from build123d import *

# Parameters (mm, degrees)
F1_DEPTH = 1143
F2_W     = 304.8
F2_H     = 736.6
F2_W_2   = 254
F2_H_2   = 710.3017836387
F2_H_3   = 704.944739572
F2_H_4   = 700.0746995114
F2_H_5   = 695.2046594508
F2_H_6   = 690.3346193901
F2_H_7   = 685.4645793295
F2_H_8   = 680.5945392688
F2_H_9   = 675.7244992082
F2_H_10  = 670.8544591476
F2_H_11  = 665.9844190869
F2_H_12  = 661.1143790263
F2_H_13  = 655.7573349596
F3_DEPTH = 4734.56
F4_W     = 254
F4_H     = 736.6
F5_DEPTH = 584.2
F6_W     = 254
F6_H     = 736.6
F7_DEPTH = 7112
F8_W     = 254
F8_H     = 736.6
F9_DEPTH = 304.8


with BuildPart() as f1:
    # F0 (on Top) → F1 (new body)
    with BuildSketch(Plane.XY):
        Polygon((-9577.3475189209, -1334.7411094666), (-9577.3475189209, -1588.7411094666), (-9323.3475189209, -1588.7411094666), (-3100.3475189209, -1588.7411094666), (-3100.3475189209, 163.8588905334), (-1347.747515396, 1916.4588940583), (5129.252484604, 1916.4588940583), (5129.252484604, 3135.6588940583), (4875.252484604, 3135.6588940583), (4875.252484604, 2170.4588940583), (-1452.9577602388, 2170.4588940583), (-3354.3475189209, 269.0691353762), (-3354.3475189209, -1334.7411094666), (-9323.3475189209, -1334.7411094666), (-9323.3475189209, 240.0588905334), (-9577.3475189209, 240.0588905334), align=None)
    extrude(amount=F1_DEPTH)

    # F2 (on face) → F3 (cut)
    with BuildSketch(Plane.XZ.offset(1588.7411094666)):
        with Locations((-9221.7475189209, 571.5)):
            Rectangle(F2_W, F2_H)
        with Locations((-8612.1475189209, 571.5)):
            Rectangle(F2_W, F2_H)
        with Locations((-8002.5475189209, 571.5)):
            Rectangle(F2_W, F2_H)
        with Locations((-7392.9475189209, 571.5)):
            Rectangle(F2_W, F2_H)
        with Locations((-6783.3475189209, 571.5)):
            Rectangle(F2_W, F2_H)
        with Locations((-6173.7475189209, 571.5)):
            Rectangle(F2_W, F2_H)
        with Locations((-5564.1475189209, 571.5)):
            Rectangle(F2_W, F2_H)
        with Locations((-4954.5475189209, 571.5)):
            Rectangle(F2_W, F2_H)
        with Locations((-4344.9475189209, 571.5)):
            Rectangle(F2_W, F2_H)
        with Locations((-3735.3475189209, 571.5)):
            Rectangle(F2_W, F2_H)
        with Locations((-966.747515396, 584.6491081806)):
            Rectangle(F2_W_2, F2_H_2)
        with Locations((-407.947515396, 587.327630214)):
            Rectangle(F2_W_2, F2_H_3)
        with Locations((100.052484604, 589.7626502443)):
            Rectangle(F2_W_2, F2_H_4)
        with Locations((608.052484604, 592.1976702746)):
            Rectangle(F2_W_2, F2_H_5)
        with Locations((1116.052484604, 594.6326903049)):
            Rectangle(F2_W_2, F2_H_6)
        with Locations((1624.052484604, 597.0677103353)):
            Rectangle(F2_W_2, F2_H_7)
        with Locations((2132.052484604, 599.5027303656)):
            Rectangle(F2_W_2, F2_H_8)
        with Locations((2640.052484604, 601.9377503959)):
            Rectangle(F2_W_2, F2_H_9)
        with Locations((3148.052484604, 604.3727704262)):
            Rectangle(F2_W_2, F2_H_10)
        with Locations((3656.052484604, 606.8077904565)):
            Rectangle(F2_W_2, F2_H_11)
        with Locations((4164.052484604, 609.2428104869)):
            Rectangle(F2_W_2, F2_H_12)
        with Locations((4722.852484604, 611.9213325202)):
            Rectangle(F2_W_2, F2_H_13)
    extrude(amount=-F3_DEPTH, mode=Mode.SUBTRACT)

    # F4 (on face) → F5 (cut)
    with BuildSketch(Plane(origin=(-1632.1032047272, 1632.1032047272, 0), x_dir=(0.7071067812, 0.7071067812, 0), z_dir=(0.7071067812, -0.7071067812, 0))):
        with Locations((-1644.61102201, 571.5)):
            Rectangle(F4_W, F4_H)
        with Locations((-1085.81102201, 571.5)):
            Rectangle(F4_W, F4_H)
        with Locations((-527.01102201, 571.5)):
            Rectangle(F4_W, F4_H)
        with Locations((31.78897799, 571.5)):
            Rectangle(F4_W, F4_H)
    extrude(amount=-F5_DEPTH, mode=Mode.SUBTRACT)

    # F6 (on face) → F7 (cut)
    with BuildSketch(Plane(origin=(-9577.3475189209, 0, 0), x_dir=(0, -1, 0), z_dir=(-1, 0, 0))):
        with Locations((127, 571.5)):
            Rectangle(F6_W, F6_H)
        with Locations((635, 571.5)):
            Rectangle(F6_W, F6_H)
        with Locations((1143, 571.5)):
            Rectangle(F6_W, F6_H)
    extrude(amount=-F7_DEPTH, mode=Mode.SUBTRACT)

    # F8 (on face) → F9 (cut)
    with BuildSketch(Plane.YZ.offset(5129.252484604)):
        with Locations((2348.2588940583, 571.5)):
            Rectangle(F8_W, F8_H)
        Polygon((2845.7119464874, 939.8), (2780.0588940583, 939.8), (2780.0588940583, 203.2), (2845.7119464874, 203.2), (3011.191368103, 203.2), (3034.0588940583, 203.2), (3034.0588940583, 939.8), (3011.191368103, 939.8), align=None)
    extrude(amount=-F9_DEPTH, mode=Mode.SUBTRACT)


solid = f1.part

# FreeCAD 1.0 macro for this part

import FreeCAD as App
import Part
import Sketcher
from FreeCAD import Vector
Q = App.Units.Quantity


def add_polygon(sketch, points):
    """Adds a closed chain of lines whose ends are joined by coincident constraints."""
    first, n = sketch.GeometryCount, len(points)
    for a, b in zip(points, points[1:] + points[:1]):
        sketch.addGeometry(Part.LineSegment(App.Vector(*a, 0), App.Vector(*b, 0)), False)
    for i in range(n):
        sketch.addConstraint(Sketcher.Constraint("Coincident", first + i, 2, first + (i + 1) % n, 1))

doc = App.newDocument("Part")
body = doc.addObject("PartDesign::Body", "Body")

sketch1 = body.newObject("Sketcher::SketchObject", "Sketch")
sketch1.AttachmentSupport = (doc.getObject("XY_Plane"), [""])
sketch1.MapMode = "FlatFace"
add_polygon(sketch1, [(-9577, -1589), (-3100, -1589), (-3100, 164), (-1348, 1916), (5129, 1916), (5129, 3136), (4875, 3136), (4875, 2170), (-1453, 2170), (-3354, 269), (-3354, -1335), (-9323, -1335), (-9323, 240), (-9577, 240)])
sketch1.addConstraint([
    Sketcher.Constraint("Horizontal", 0),
    Sketcher.Constraint("Vertical", 1),
    Sketcher.Constraint("Horizontal", 3),
    Sketcher.Constraint("Vertical", 4),
    Sketcher.Constraint("Horizontal", 5),
    Sketcher.Constraint("Vertical", 6),
    Sketcher.Constraint("Horizontal", 7),
    Sketcher.Constraint("Vertical", 9),
    Sketcher.Constraint("Horizontal", 10),
    Sketcher.Constraint("Vertical", 11),
    Sketcher.Constraint("Horizontal", 12),
    Sketcher.Constraint("Vertical", 13),
    Sketcher.Constraint("Parallel", 2, 8),
    Sketcher.Constraint("Equal", 0, 3),
    Sketcher.Constraint("Equal", 5, 12),
    Sketcher.Constraint("DistanceX", 0, 1, 0, 2, Q("255 in")),
    Sketcher.Constraint("DistanceX", 5, 2, 5, 1, Q("10 in")),
    Sketcher.Constraint("DistanceX", 10, 2, 10, 1, Q("235 in")),
    Sketcher.Constraint("DistanceY", 1, 1, 1, 2, Q("69 in")),
    Sketcher.Constraint("DistanceY", 4, 1, 4, 2, Q("48 in")),
    Sketcher.Constraint("DistanceY", 6, 2, 6, 1, Q("38 in")),
    Sketcher.Constraint("DistanceY", 11, 1, 11, 2, Q("62 in")),
    Sketcher.Constraint("DistanceY", 13, 2, 13, 1, Q("72 in")),
    Sketcher.Constraint("Angle", 2, Q("45 deg")),
    Sketcher.Constraint("DistanceX", 1, 2, 2, 2, Q("69.0000001 in")),
    Sketcher.Constraint("DistanceX", 7, 2, 7, 1, Q("6328.210245 mm")),
    Sketcher.Constraint("DistanceX", 0, 2, -1, 1, Q("3100.347519 mm")),
    Sketcher.Constraint("DistanceY", 0, 2, -1, 1, Q("1588.741109 mm")),
])
pad1 = body.newObject("PartDesign::Pad", "Pad")
pad1.Profile = sketch1
pad1.Length = Q("45 in")

sketch2 = body.newObject("Sketcher::SketchObject", "Sketch001")
sketch2.AttachmentSupport = (doc.getObject("XZ_Plane"), [""])
sketch2.MapMode = "FlatFace"
sketch2.AttachmentOffset = App.Placement(Vector(0, 0, 1588.741109), App.Rotation())
add_polygon(sketch2, [(-9374, 940), (-9374, 203), (-9069, 203), (-9069, 940)])
add_polygon(sketch2, [(-8765, 940), (-8765, 203), (-8460, 203), (-8460, 940)])
add_polygon(sketch2, [(-8155, 940), (-8155, 203), (-7850, 203), (-7850, 940)])
add_polygon(sketch2, [(-7545, 940), (-7545, 203), (-7241, 203), (-7241, 940)])
add_polygon(sketch2, [(-6936, 940), (-6936, 203), (-6631, 203), (-6631, 940)])
add_polygon(sketch2, [(-6326, 940), (-6326, 203), (-6021, 203), (-6021, 940)])
add_polygon(sketch2, [(-5717, 940), (-5717, 203), (-5412, 203), (-5412, 940)])
add_polygon(sketch2, [(-5107, 940), (-5107, 203), (-4802, 203), (-4802, 940)])
add_polygon(sketch2, [(-4497, 940), (-4497, 203), (-4193, 203), (-4193, 940)])
add_polygon(sketch2, [(-3888, 940), (-3888, 203), (-3583, 203), (-3583, 940)])
add_polygon(sketch2, [(-1094, 940), (-1094, 229), (-840, 229), (-840, 940)])
add_polygon(sketch2, [(-535, 940), (-535, 235), (-281, 235), (-281, 940)])
add_polygon(sketch2, [(-27, 940), (-27, 240), (227, 240), (227, 940)])
add_polygon(sketch2, [(481, 940), (481, 245), (735, 245), (735, 940)])
add_polygon(sketch2, [(989, 940), (989, 249), (1243, 249), (1243, 940)])
add_polygon(sketch2, [(1497, 940), (1497, 254), (1751, 254), (1751, 940)])
add_polygon(sketch2, [(2005, 940), (2005, 259), (2259, 259), (2259, 940)])
add_polygon(sketch2, [(2513, 940), (2513, 264), (2767, 264), (2767, 940)])
add_polygon(sketch2, [(3021, 940), (3021, 269), (3275, 269), (3275, 940)])
add_polygon(sketch2, [(3529, 940), (3529, 274), (3783, 274), (3783, 940)])
add_polygon(sketch2, [(4037, 940), (4037, 279), (4291, 279), (4291, 940)])
add_polygon(sketch2, [(4596, 940), (4596, 284), (4850, 284), (4850, 940)])
sketch2.addConstraint([
    Sketcher.Constraint("Vertical", 0),
    Sketcher.Constraint("Horizontal", 1),
    Sketcher.Constraint("Vertical", 2),
    Sketcher.Constraint("Horizontal", 3),
    Sketcher.Constraint("Vertical", 4),
    Sketcher.Constraint("Horizontal", 5),
    Sketcher.Constraint("Vertical", 6),
    Sketcher.Constraint("Horizontal", 7),
    Sketcher.Constraint("Vertical", 8),
    Sketcher.Constraint("Horizontal", 9),
    Sketcher.Constraint("Vertical", 10),
    Sketcher.Constraint("Horizontal", 11),
    Sketcher.Constraint("Vertical", 12),
    Sketcher.Constraint("Horizontal", 13),
    Sketcher.Constraint("Vertical", 14),
    Sketcher.Constraint("Horizontal", 15),
    Sketcher.Constraint("Vertical", 16),
    Sketcher.Constraint("Horizontal", 17),
    Sketcher.Constraint("Vertical", 18),
    Sketcher.Constraint("Horizontal", 19),
    Sketcher.Constraint("Vertical", 20),
    Sketcher.Constraint("Horizontal", 21),
    Sketcher.Constraint("Vertical", 22),
    Sketcher.Constraint("Horizontal", 23),
    Sketcher.Constraint("Vertical", 24),
    Sketcher.Constraint("Horizontal", 25),
    Sketcher.Constraint("Vertical", 26),
    Sketcher.Constraint("Horizontal", 27),
    Sketcher.Constraint("Vertical", 28),
    Sketcher.Constraint("Horizontal", 29),
    Sketcher.Constraint("Vertical", 30),
    Sketcher.Constraint("Horizontal", 31),
    Sketcher.Constraint("Vertical", 32),
    Sketcher.Constraint("Horizontal", 33),
    Sketcher.Constraint("Vertical", 34),
    Sketcher.Constraint("Horizontal", 35),
    Sketcher.Constraint("Vertical", 36),
    Sketcher.Constraint("Horizontal", 37),
    Sketcher.Constraint("Vertical", 38),
    Sketcher.Constraint("Horizontal", 39),
    Sketcher.Constraint("Vertical", 40),
    Sketcher.Constraint("Horizontal", 41),
    Sketcher.Constraint("Vertical", 42),
    Sketcher.Constraint("Horizontal", 43),
    Sketcher.Constraint("Vertical", 44),
    Sketcher.Constraint("Horizontal", 45),
    Sketcher.Constraint("Vertical", 46),
    Sketcher.Constraint("Horizontal", 47),
    Sketcher.Constraint("Vertical", 48),
    Sketcher.Constraint("Horizontal", 49),
    Sketcher.Constraint("Vertical", 50),
    Sketcher.Constraint("Horizontal", 51),
    Sketcher.Constraint("Vertical", 52),
    Sketcher.Constraint("Horizontal", 53),
    Sketcher.Constraint("Vertical", 54),
    Sketcher.Constraint("Horizontal", 55),
    Sketcher.Constraint("Vertical", 56),
    Sketcher.Constraint("Horizontal", 57),
    Sketcher.Constraint("Vertical", 58),
    Sketcher.Constraint("Horizontal", 59),
    Sketcher.Constraint("Vertical", 60),
    Sketcher.Constraint("Horizontal", 61),
    Sketcher.Constraint("Vertical", 62),
    Sketcher.Constraint("Horizontal", 63),
    Sketcher.Constraint("Vertical", 64),
    Sketcher.Constraint("Horizontal", 65),
    Sketcher.Constraint("Vertical", 66),
    Sketcher.Constraint("Horizontal", 67),
    Sketcher.Constraint("Vertical", 68),
    Sketcher.Constraint("Horizontal", 69),
    Sketcher.Constraint("Vertical", 70),
    Sketcher.Constraint("Horizontal", 71),
    Sketcher.Constraint("Vertical", 72),
    Sketcher.Constraint("Horizontal", 73),
    Sketcher.Constraint("Vertical", 74),
    Sketcher.Constraint("Horizontal", 75),
    Sketcher.Constraint("Vertical", 76),
    Sketcher.Constraint("Horizontal", 77),
    Sketcher.Constraint("Vertical", 78),
    Sketcher.Constraint("Horizontal", 79),
    Sketcher.Constraint("Vertical", 80),
    Sketcher.Constraint("Horizontal", 81),
    Sketcher.Constraint("Vertical", 82),
    Sketcher.Constraint("Horizontal", 83),
    Sketcher.Constraint("Vertical", 84),
    Sketcher.Constraint("Horizontal", 85),
    Sketcher.Constraint("Vertical", 86),
    Sketcher.Constraint("Horizontal", 87),
    Sketcher.Constraint("Horizontal", 1, 2, 4, 2),
    Sketcher.Constraint("Horizontal", 3, 2, 6, 2),
    Sketcher.Constraint("Horizontal", 5, 2, 8, 2),
    Sketcher.Constraint("Horizontal", 7, 2, 10, 2),
    Sketcher.Constraint("Horizontal", 9, 2, 12, 2),
    Sketcher.Constraint("Horizontal", 11, 2, 14, 2),
    Sketcher.Constraint("Horizontal", 13, 2, 16, 2),
    Sketcher.Constraint("Horizontal", 15, 2, 18, 2),
    Sketcher.Constraint("Horizontal", 17, 2, 20, 2),
    Sketcher.Constraint("Horizontal", 19, 2, 22, 2),
    Sketcher.Constraint("Horizontal", 21, 2, 24, 2),
    Sketcher.Constraint("Horizontal", 23, 2, 26, 2),
    Sketcher.Constraint("Horizontal", 25, 2, 28, 2),
    Sketcher.Constraint("Horizontal", 27, 2, 30, 2),
    Sketcher.Constraint("Horizontal", 29, 2, 32, 2),
    Sketcher.Constraint("Horizontal", 31, 2, 34, 2),
    Sketcher.Constraint("Horizontal", 33, 2, 36, 2),
    Sketcher.Constraint("Horizontal", 35, 2, 38, 2),
    Sketcher.Constraint("Horizontal", 39, 2, 42, 2),
    Sketcher.Constraint("Horizontal", 43, 2, 46, 2),
    Sketcher.Constraint("Horizontal", 47, 2, 50, 2),
    Sketcher.Constraint("Horizontal", 51, 2, 54, 2),
    Sketcher.Constraint("Horizontal", 55, 2, 58, 2),
    Sketcher.Constraint("Horizontal", 59, 2, 62, 2),
    Sketcher.Constraint("Horizontal", 63, 2, 66, 2),
    Sketcher.Constraint("Horizontal", 67, 2, 70, 2),
    Sketcher.Constraint("Horizontal", 71, 2, 74, 2),
    Sketcher.Constraint("Horizontal", 75, 2, 78, 2),
    Sketcher.Constraint("Horizontal", 79, 2, 82, 2),
    Sketcher.Constraint("Horizontal", 83, 2, 86, 2),
    Sketcher.Constraint("Equal", 3, 5),
    Sketcher.Constraint("Equal", 7, 9),
    Sketcher.Constraint("Equal", 11, 13),
    Sketcher.Constraint("Equal", 15, 17),
    Sketcher.Constraint("Equal", 19, 21),
    Sketcher.Constraint("Equal", 23, 25),
    Sketcher.Constraint("Equal", 27, 29),
    Sketcher.Constraint("Equal", 31, 33),
    Sketcher.Constraint("Equal", 35, 37),
    Sketcher.Constraint("Equal", 43, 45),
    Sketcher.Constraint("Equal", 47, 49),
    Sketcher.Constraint("Equal", 51, 53),
    Sketcher.Constraint("Equal", 55, 57),
    Sketcher.Constraint("Equal", 59, 61),
    Sketcher.Constraint("Equal", 63, 65),
    Sketcher.Constraint("Equal", 67, 69),
    Sketcher.Constraint("Equal", 71, 73),
    Sketcher.Constraint("Equal", 75, 77),
    Sketcher.Constraint("Equal", 79, 81),
    Sketcher.Constraint("Equal", 83, 85),
    Sketcher.Constraint("DistanceX", 1, 1, 1, 2, Q("12 in")),
    Sketcher.Constraint("DistanceX", 41, 1, 41, 2, Q("10 in")),
    Sketcher.Constraint("DistanceY", 0, 2, 0, 1, Q("29 in")),
    Sketcher.Constraint("DistanceY", -1, 1, 0, 2, Q("8 in")),
    Sketcher.Constraint("DistanceY", 48, 2, 48, 1, Q("700.0747 mm")),
    Sketcher.Constraint("DistanceY", 68, 2, 68, 1, Q("675.724499 mm")),
    Sketcher.Constraint("DistanceY", 44, 2, 44, 1, Q("704.94474 mm")),
    Sketcher.Constraint("DistanceY", 52, 2, 52, 1, Q("695.204659 mm")),
    Sketcher.Constraint("DistanceY", 56, 2, 56, 1, Q("690.334619 mm")),
    Sketcher.Constraint("DistanceY", 60, 2, 60, 1, Q("685.464579 mm")),
    Sketcher.Constraint("DistanceY", 64, 2, 64, 1, Q("680.594539 mm")),
    Sketcher.Constraint("DistanceY", 72, 2, 72, 1, Q("670.854459 mm")),
    Sketcher.Constraint("DistanceY", 76, 2, 76, 1, Q("665.984419 mm")),
    Sketcher.Constraint("DistanceY", 80, 2, 80, 1, Q("661.114379 mm")),
    Sketcher.Constraint("DistanceY", 40, 2, 40, 1, Q("710.301784 mm")),
    Sketcher.Constraint("DistanceY", 84, 2, 84, 1, Q("655.757335 mm")),
    Sketcher.Constraint("DistanceX", 0, 2, -1, 1, Q("9374.147519 mm")),
    Sketcher.Constraint("DistanceX", 4, 2, -1, 1, Q("8764.547519 mm")),
    Sketcher.Constraint("DistanceX", 8, 2, -1, 1, Q("8154.947519 mm")),
    Sketcher.Constraint("DistanceX", 12, 2, -1, 1, Q("7545.347519 mm")),
    Sketcher.Constraint("DistanceX", 16, 2, -1, 1, Q("6935.747519 mm")),
    Sketcher.Constraint("DistanceX", 20, 2, -1, 1, Q("6326.147519 mm")),
    Sketcher.Constraint("DistanceX", 24, 2, -1, 1, Q("5716.547519 mm")),
    Sketcher.Constraint("DistanceX", 28, 2, -1, 1, Q("5106.947519 mm")),
    Sketcher.Constraint("DistanceX", 32, 2, -1, 1, Q("4497.347519 mm")),
    Sketcher.Constraint("DistanceX", 36, 2, -1, 1, Q("3887.747519 mm")),
    Sketcher.Constraint("DistanceX", 40, 2, -1, 1, Q("1093.747515 mm")),
    Sketcher.Constraint("DistanceX", 44, 2, -1, 1, Q("534.947515 mm")),
    Sketcher.Constraint("DistanceX", 48, 2, -1, 1, Q("26.947515 mm")),
    Sketcher.Constraint("DistanceX", -1, 1, 52, 2, Q("481.052485 mm")),
    Sketcher.Constraint("DistanceX", -1, 1, 56, 2, Q("989.052485 mm")),
    Sketcher.Constraint("DistanceX", -1, 1, 60, 2, Q("1497.052485 mm")),
    Sketcher.Constraint("DistanceX", -1, 1, 64, 2, Q("2005.052485 mm")),
    Sketcher.Constraint("DistanceX", -1, 1, 68, 2, Q("2513.052485 mm")),
    Sketcher.Constraint("DistanceX", -1, 1, 72, 2, Q("3021.052485 mm")),
    Sketcher.Constraint("DistanceX", -1, 1, 76, 2, Q("3529.052485 mm")),
    Sketcher.Constraint("DistanceX", -1, 1, 80, 2, Q("4037.052485 mm")),
    Sketcher.Constraint("DistanceX", -1, 1, 84, 2, Q("4595.852485 mm")),
])
pocket1 = body.newObject("PartDesign::Pocket", "Pocket")
pocket1.Profile = sketch2
pocket1.Length = Q("186.4 in")

sketch3 = body.newObject("Sketcher::SketchObject", "Sketch002")
sketch3.Placement = App.Placement(Vector(-1632.103205, 1632.103205, 0), App.Rotation(Vector(0.707106781, 0.707106781, 0), Vector(0, 0, 0.999999999), Vector(0.707106781, -0.707106781, 0), "ZXY"))
add_polygon(sketch3, [(-1772, 940), (-1772, 203), (-1518, 203), (-1518, 940)])
add_polygon(sketch3, [(-1213, 940), (-1213, 203), (-959, 203), (-959, 940)])
add_polygon(sketch3, [(-654, 940), (-654, 203), (-400, 203), (-400, 940)])
add_polygon(sketch3, [(-95, 940), (-95, 203), (159, 203), (159, 940)])
sketch3.addConstraint([
    Sketcher.Constraint("Vertical", 0),
    Sketcher.Constraint("Horizontal", 1),
    Sketcher.Constraint("Vertical", 2),
    Sketcher.Constraint("Horizontal", 3),
    Sketcher.Constraint("Vertical", 4),
    Sketcher.Constraint("Horizontal", 5),
    Sketcher.Constraint("Vertical", 6),
    Sketcher.Constraint("Horizontal", 7),
    Sketcher.Constraint("Vertical", 8),
    Sketcher.Constraint("Horizontal", 9),
    Sketcher.Constraint("Vertical", 10),
    Sketcher.Constraint("Horizontal", 11),
    Sketcher.Constraint("Vertical", 12),
    Sketcher.Constraint("Horizontal", 13),
    Sketcher.Constraint("Vertical", 14),
    Sketcher.Constraint("Horizontal", 15),
    Sketcher.Constraint("Horizontal", 1, 2, 4, 2),
    Sketcher.Constraint("Horizontal", 3, 2, 6, 2),
    Sketcher.Constraint("Horizontal", 5, 2, 8, 2),
    Sketcher.Constraint("Horizontal", 7, 2, 10, 2),
    Sketcher.Constraint("Horizontal", 9, 2, 12, 2),
    Sketcher.Constraint("Horizontal", 11, 2, 14, 2),
    Sketcher.Constraint("Equal", 3, 5),
    Sketcher.Constraint("Equal", 7, 9),
    Sketcher.Constraint("Equal", 11, 13),
    Sketcher.Constraint("DistanceX", 1, 1, 1, 2, Q("10 in")),
    Sketcher.Constraint("DistanceY", 0, 2, 0, 1, Q("29 in")),
    Sketcher.Constraint("DistanceY", -1, 1, 0, 2, Q("8 in")),
    Sketcher.Constraint("DistanceX", 1, 2, 4, 2, Q("12 in")),
    Sketcher.Constraint("DistanceX", 5, 2, 8, 2, Q("12 in")),
    Sketcher.Constraint("DistanceX", 9, 2, 12, 2, Q("12 in")),
    Sketcher.Constraint("DistanceX", 0, 2, -1, 1, Q("1771.611021 mm")),
])
pocket2 = body.newObject("PartDesign::Pocket", "Pocket001")
pocket2.Profile = sketch3
pocket2.Length = Q("23 in")

sketch4 = body.newObject("Sketcher::SketchObject", "Sketch003")
sketch4.AttachmentSupport = (doc.getObject("YZ_Plane"), [""])
sketch4.MapMode = "FlatFace"
sketch4.AttachmentOffset = App.Placement(Vector(0, 0, -9577.347519), App.Rotation())
add_polygon(sketch4, [(0, 940), (0, 203), (-254, 203), (-254, 940)])
add_polygon(sketch4, [(-508, 940), (-508, 203), (-762, 203), (-762, 940)])
add_polygon(sketch4, [(-1016, 940), (-1016, 203), (-1270, 203), (-1270, 940)])
sketch4.addConstraint([
    Sketcher.Constraint("Vertical", 0),
    Sketcher.Constraint("Horizontal", 1),
    Sketcher.Constraint("Vertical", 2),
    Sketcher.Constraint("Horizontal", 3),
    Sketcher.Constraint("Vertical", 4),
    Sketcher.Constraint("Horizontal", 5),
    Sketcher.Constraint("Vertical", 6),
    Sketcher.Constraint("Horizontal", 7),
    Sketcher.Constraint("Vertical", 8),
    Sketcher.Constraint("Horizontal", 9),
    Sketcher.Constraint("Vertical", 10),
    Sketcher.Constraint("Horizontal", 11),
    Sketcher.Constraint("PointOnObject", 0, 2, -2),
    Sketcher.Constraint("Horizontal", 1, 2, 4, 2),
    Sketcher.Constraint("Horizontal", 3, 2, 6, 2),
    Sketcher.Constraint("Horizontal", 5, 2, 8, 2),
    Sketcher.Constraint("Horizontal", 7, 2, 10, 2),
    Sketcher.Constraint("Equal", 3, 5),
    Sketcher.Constraint("Equal", 7, 9),
    Sketcher.Constraint("DistanceX", 1, 2, 1, 1, Q("10 in")),
    Sketcher.Constraint("DistanceY", 0, 2, 0, 1, Q("29 in")),
    Sketcher.Constraint("DistanceY", -1, 1, 0, 2, Q("8 in")),
    Sketcher.Constraint("DistanceX", 4, 2, -1, 1, Q("20 in")),
    Sketcher.Constraint("DistanceX", 8, 2, -1, 1, Q("40 in")),
])
pocket3 = body.newObject("PartDesign::Pocket", "Pocket002")
pocket3.Profile = sketch4
pocket3.Length = Q("280 in")
pocket3.Reversed = True

sketch5 = body.newObject("Sketcher::SketchObject", "Sketch004")
sketch5.AttachmentSupport = (doc.getObject("YZ_Plane"), [""])
sketch5.MapMode = "FlatFace"
sketch5.AttachmentOffset = App.Placement(Vector(0, 0, 5129.252485), App.Rotation())
add_polygon(sketch5, [(2221, 940), (2221, 203), (2475, 203), (2475, 940)])
add_polygon(sketch5, [(2780, 940), (2780, 203), (3034, 203), (3034, 940)])
sketch5.addConstraint([
    Sketcher.Constraint("Vertical", 0),
    Sketcher.Constraint("Horizontal", 1),
    Sketcher.Constraint("Vertical", 2),
    Sketcher.Constraint("Horizontal", 3),
    Sketcher.Constraint("Vertical", 4),
    Sketcher.Constraint("Horizontal", 5),
    Sketcher.Constraint("Vertical", 6),
    Sketcher.Constraint("Horizontal", 7),
    Sketcher.Constraint("Horizontal", 1, 2, 4, 2),
    Sketcher.Constraint("Horizontal", 3, 2, 6, 2),
    Sketcher.Constraint("Equal", 3, 5),
    Sketcher.Constraint("DistanceX", 1, 1, 1, 2, Q("10 in")),
    Sketcher.Constraint("DistanceY", 0, 2, 0, 1, Q("29 in")),
    Sketcher.Constraint("DistanceY", -1, 1, 0, 2, Q("8 in")),
    Sketcher.Constraint("DistanceX", 1, 2, 4, 2, Q("12 in")),
    Sketcher.Constraint("DistanceX", -1, 1, 0, 2, Q("2221.258894 mm")),
])
pocket4 = body.newObject("PartDesign::Pocket", "Pocket003")
pocket4.Profile = sketch5
pocket4.Length = Q("12 in")

doc.recompute()
